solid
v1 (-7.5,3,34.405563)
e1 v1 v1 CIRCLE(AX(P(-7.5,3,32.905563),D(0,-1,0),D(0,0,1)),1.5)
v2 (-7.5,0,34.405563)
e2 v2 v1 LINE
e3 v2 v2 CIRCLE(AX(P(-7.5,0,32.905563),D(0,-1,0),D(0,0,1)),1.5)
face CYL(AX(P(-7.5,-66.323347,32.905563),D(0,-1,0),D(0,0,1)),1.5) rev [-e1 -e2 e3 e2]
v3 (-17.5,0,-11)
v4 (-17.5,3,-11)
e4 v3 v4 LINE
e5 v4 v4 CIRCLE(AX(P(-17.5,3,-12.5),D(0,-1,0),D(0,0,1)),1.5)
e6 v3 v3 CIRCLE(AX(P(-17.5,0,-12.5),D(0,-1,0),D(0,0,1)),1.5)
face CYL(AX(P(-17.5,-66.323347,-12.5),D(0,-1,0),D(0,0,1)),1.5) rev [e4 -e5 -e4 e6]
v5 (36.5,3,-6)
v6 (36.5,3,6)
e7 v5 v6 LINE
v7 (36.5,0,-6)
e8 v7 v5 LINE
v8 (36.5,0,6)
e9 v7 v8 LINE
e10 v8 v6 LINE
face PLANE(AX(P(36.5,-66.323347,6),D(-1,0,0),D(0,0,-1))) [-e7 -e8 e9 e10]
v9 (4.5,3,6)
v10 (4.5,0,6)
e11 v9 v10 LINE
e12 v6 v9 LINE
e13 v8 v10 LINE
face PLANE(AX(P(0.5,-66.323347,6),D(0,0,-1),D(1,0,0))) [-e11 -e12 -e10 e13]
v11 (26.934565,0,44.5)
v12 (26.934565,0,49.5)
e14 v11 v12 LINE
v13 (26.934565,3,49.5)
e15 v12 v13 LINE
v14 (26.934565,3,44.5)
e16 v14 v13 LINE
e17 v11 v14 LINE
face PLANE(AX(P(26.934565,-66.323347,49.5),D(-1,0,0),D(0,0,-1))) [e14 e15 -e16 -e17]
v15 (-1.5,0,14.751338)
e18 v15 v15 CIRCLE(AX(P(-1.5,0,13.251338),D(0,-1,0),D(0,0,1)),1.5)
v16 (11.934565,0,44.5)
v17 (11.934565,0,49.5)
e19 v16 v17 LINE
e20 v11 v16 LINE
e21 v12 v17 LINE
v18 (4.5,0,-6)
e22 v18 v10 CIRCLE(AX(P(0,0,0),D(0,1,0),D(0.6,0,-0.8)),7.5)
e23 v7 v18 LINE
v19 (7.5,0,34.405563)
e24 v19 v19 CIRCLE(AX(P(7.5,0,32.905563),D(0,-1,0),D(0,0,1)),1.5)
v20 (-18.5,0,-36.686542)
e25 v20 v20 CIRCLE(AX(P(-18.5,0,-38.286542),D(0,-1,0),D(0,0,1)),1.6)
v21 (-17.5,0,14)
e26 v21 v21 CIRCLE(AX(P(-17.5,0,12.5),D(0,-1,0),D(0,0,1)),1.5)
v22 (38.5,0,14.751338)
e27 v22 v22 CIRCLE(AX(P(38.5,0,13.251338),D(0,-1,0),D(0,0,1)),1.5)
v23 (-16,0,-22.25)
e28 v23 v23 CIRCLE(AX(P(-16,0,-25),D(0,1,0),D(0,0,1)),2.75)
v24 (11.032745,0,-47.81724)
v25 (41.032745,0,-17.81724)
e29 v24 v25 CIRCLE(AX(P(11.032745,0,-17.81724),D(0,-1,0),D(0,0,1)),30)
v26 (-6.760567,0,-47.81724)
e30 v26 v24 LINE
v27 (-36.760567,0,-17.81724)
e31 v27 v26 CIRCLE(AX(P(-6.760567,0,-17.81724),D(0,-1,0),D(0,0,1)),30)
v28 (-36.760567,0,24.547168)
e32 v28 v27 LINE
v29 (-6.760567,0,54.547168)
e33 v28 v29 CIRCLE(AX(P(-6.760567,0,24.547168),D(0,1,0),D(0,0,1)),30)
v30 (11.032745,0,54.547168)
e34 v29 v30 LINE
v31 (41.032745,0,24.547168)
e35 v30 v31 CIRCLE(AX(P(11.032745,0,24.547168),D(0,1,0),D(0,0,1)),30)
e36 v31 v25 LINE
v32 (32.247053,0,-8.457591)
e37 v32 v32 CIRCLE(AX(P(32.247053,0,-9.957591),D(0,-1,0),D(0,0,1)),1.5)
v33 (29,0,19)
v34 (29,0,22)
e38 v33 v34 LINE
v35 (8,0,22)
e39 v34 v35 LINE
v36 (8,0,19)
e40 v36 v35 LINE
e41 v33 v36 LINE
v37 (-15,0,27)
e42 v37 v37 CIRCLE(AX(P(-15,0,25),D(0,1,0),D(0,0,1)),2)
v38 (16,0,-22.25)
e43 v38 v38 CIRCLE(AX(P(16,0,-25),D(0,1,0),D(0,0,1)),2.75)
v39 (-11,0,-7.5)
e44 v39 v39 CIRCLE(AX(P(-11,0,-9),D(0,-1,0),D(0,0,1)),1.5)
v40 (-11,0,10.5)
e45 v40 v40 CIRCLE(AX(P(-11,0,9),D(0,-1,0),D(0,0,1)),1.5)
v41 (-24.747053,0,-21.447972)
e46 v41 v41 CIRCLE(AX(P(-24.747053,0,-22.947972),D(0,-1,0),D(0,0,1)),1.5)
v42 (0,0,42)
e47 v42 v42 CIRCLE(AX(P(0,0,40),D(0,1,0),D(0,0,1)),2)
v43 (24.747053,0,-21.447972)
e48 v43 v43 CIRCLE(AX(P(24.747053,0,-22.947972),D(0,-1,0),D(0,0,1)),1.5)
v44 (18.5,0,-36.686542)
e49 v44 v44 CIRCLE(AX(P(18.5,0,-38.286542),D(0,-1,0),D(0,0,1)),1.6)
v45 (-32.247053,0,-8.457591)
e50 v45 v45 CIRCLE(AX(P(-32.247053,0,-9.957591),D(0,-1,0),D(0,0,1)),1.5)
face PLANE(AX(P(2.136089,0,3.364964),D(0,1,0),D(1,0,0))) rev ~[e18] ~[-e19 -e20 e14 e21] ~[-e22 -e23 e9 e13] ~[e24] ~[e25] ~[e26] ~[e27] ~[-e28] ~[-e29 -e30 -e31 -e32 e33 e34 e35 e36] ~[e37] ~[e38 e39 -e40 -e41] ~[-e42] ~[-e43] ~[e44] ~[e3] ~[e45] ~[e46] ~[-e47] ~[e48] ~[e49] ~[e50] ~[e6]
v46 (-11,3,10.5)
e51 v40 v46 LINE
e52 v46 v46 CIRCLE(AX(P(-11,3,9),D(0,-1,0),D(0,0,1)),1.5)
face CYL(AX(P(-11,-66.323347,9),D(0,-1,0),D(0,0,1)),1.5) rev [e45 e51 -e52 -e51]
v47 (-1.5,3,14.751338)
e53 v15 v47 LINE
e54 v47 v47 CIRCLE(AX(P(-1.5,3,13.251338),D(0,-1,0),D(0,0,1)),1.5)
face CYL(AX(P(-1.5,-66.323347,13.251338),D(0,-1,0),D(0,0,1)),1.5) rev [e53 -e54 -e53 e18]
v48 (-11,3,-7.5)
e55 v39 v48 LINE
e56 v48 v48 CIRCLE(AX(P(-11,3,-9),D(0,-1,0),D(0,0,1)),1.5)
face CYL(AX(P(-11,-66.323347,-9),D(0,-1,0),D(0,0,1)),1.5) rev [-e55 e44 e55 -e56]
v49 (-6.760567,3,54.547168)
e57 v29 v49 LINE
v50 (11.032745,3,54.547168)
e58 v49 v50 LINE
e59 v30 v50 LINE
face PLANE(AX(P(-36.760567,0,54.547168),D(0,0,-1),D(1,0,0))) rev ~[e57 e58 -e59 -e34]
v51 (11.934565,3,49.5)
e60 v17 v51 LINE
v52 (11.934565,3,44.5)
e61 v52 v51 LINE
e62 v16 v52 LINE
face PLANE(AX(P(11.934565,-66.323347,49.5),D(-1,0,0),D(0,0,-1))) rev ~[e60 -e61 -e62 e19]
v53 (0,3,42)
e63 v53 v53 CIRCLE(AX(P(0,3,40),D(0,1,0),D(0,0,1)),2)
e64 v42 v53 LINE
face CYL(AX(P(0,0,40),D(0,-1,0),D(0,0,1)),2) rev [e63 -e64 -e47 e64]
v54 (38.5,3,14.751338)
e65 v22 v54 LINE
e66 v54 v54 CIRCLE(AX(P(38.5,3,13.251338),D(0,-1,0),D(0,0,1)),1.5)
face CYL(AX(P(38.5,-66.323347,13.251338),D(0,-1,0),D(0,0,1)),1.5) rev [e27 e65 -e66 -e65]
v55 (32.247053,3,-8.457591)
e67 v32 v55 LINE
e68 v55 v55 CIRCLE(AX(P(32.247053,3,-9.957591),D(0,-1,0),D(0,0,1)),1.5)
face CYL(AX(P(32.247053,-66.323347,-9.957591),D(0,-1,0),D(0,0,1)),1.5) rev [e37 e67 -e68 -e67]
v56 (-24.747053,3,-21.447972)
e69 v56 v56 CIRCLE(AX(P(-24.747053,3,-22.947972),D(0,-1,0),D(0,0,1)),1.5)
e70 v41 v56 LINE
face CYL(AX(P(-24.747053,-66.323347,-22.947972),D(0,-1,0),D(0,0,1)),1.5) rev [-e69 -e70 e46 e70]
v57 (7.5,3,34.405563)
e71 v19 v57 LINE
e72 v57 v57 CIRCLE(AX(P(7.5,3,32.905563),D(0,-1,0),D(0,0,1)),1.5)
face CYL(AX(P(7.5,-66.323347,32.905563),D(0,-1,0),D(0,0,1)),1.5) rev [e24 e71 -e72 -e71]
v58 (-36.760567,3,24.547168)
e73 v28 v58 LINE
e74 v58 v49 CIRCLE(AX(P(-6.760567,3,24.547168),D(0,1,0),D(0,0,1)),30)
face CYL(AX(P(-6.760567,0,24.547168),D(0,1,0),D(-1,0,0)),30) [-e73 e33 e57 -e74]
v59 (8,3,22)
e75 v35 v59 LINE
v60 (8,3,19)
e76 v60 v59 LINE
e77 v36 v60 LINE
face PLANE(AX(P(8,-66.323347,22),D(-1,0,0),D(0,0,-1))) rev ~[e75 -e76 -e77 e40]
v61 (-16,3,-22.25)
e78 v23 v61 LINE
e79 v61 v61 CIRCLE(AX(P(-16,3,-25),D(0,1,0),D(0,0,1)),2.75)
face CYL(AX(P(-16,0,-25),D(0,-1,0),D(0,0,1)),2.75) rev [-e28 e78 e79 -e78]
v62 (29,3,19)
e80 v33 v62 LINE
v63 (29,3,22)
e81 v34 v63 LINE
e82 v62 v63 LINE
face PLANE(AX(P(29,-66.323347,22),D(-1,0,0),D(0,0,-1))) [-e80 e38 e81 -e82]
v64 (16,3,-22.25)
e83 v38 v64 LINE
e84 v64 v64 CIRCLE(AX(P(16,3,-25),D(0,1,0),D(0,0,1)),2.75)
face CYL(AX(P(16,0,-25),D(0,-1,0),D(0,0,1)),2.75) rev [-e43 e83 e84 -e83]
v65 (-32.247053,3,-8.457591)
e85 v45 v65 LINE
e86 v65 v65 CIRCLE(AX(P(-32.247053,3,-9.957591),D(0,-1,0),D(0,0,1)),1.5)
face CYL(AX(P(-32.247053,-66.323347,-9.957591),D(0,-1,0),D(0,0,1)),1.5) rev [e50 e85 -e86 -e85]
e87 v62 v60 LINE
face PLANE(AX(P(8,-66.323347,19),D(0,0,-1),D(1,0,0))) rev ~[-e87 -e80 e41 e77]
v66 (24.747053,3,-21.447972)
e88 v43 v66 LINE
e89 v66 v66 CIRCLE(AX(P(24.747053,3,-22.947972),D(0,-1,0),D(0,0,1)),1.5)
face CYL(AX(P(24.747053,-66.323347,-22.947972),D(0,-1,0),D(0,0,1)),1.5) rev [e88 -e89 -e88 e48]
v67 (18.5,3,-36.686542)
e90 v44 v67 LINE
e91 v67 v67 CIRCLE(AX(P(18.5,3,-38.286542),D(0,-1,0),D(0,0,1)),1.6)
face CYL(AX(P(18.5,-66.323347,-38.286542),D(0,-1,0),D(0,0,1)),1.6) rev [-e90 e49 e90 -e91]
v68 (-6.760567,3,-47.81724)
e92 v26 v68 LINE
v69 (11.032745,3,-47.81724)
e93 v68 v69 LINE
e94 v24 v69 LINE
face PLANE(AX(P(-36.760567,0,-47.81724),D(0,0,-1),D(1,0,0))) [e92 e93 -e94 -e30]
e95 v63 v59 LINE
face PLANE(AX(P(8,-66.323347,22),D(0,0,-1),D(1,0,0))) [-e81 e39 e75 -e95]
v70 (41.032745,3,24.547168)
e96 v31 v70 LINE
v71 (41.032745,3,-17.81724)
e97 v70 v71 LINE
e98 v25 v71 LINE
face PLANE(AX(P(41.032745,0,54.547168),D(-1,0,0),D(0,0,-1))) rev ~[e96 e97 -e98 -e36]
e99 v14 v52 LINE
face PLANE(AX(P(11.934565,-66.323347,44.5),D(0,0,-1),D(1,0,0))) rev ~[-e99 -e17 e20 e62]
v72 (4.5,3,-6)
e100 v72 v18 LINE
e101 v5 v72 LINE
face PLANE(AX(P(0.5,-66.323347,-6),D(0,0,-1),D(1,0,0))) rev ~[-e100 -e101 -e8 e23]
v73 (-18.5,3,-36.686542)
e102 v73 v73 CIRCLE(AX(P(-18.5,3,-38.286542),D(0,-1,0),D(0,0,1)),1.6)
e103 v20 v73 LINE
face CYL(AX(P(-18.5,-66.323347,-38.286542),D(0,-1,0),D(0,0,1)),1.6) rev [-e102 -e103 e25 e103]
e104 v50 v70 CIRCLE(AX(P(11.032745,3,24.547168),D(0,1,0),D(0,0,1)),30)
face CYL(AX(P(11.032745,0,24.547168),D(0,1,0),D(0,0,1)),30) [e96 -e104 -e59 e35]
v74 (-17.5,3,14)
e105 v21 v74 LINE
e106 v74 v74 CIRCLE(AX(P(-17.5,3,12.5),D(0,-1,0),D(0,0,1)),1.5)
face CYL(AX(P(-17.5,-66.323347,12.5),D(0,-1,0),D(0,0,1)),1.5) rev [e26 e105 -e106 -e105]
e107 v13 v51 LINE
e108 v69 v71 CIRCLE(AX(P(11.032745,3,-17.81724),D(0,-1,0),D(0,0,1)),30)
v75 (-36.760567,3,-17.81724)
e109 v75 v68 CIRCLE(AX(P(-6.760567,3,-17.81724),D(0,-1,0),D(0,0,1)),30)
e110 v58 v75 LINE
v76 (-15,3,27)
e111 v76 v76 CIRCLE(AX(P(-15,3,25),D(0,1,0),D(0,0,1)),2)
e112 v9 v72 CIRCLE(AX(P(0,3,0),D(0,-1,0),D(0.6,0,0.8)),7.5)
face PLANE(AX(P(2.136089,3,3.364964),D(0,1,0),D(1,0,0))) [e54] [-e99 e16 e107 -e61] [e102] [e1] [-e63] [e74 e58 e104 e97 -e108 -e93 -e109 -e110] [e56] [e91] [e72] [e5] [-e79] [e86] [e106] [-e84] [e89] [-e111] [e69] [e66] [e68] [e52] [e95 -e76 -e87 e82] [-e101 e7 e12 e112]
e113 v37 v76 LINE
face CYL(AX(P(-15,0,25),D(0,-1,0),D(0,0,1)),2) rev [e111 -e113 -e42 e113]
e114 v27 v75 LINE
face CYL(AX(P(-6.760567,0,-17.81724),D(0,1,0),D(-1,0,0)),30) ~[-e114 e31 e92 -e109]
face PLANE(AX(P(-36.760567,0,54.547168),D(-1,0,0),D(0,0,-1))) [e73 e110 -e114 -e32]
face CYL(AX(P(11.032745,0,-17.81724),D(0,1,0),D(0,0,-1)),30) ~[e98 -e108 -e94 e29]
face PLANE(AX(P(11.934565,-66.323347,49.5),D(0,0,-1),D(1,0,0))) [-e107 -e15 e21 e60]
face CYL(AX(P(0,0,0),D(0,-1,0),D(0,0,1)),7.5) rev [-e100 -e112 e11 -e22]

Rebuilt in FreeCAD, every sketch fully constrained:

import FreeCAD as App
import Part
import Sketcher

V = App.Vector
Q = App.Units.Quantity


def edges_at(feature, points):
    """Names of the edges that pass closest to the given points."""
    edges = feature.Shape.Edges
    near = lambda p: min(range(len(edges)), key=lambda i: edges[i].distToShape(Part.Vertex(*p))[0])
    return sorted({f"Edge{near(p) + 1}" for p in points})

doc = App.newDocument("Part")
body = doc.addObject("PartDesign::Body", "Body")

# Sketch on XZ plane
sketch1 = doc.addObject("Sketcher::SketchObject", "Sketch")
body.addObject(sketch1)
sketch1.AttachmentSupport = (doc.XZ_Plane, [""])
sketch1.MapMode = "FlatFace"
sketch1.addGeometry(Part.LineSegment(V(-36.8, -47.8, 0), V(-36.8, 54.5, 0)), False)
sketch1.addGeometry(Part.LineSegment(V(-36.8, 54.5, 0), V(41, 54.5, 0)), False)
sketch1.addGeometry(Part.LineSegment(V(41, 54.5, 0), V(41, -47.8, 0)), False)
sketch1.addGeometry(Part.LineSegment(V(41, -47.8, 0), V(-36.8, -47.8, 0)), False)
sketch1.addGeometry(Part.Circle(V(-15, 25, 0), V(0, 0, 1), 2), False)
sketch1.addGeometry(Part.Circle(V(0, 40, 0), V(0, 0, 1), 2), False)
sketch1.addGeometry(Part.Circle(V(-16, -25, 0), V(0, 0, 1), 2.8), False)
sketch1.addGeometry(Part.Circle(V(0, 0, 0), V(0, 0, 1), 7.5), False)
sketch1.addGeometry(Part.Circle(V(16, -25, 0), V(0, 0, 1), 2.8), False)
sketch1.addConstraint(Sketcher.Constraint("Coincident", 0, 2, 1, 1))
sketch1.addConstraint(Sketcher.Constraint("Coincident", 1, 2, 2, 1))
sketch1.addConstraint(Sketcher.Constraint("Coincident", 2, 2, 3, 1))
sketch1.addConstraint(Sketcher.Constraint("Coincident", 3, 2, 0, 1))
sketch1.addConstraint(Sketcher.Constraint("Vertical", 0))
sketch1.addConstraint(Sketcher.Constraint("Horizontal", 1))
sketch1.addConstraint(Sketcher.Constraint("Vertical", 2))
sketch1.addConstraint(Sketcher.Constraint("Horizontal", 3))
sketch1.addConstraint(Sketcher.Constraint("Coincident", 7, 3, -1, 1))
sketch1.addConstraint(Sketcher.Constraint("Equal", 4, 5))
sketch1.addConstraint(Sketcher.Constraint("Equal", 6, 8))
sketch1.addConstraint(Sketcher.Constraint("Symmetric", 6, 3, 8, 3, -2))
sketch1.addConstraint(Sketcher.Constraint("PointOnObject", 5, 3, -2))
sketch1.addConstraint(Sketcher.Constraint("Diameter", 4, Q("4 mm")))
sketch1.addConstraint(Sketcher.Constraint("Diameter", 7, Q("15 mm")))
sketch1.addConstraint(Sketcher.Constraint("Diameter", 6, Q("5.5 mm")))
sketch1.addConstraint(Sketcher.Constraint("DistanceX", 4, 3, -1, 1, Q("15 mm")))
sketch1.addConstraint(Sketcher.Constraint("DistanceY", -1, 1, 4, 3, Q("25 mm")))
sketch1.addConstraint(Sketcher.Constraint("DistanceY", -1, 1, 5, 3, Q("40 mm")))
sketch1.addConstraint(Sketcher.Constraint("DistanceX", 6, 3, -1, 1, Q("16 mm")))
sketch1.addConstraint(Sketcher.Constraint("DistanceY", 6, 3, -1, 1, Q("25 mm")))
sketch1.addConstraint(Sketcher.Constraint("DistanceX", 1, 1, 1, 2, Q("77.793312 mm")))
sketch1.addConstraint(Sketcher.Constraint("DistanceY", 0, 1, 0, 2, Q("102.364408 mm")))
sketch1.addConstraint(Sketcher.Constraint("DistanceY", 2, 2, -1, 1, Q("47.81724 mm")))
sketch1.addConstraint(Sketcher.Constraint("DistanceX", 0, 2, -1, 1, Q("36.760567 mm")))
pad1 = doc.addObject("PartDesign::Pad", "Pad")
body.addObject(pad1)
pad1.Profile = sketch1
pad1.Length = 3
pad1.Reversed = True

# Sketch on XZ plane
sketch2 = doc.addObject("Sketcher::SketchObject", "Sketch001")
body.addObject(sketch2)
sketch2.AttachmentSupport = (doc.XZ_Plane, [""])
sketch2.MapMode = "FlatFace"
sketch2.AttachmentOffset = App.Placement(V(0, 0, -3), App.Rotation())
sketch2.addGeometry(Part.Circle(V(7.5, 32.9, 0), V(0, 0, 1), 1.5), False)
sketch2.addGeometry(Part.Circle(V(-7.5, 32.9, 0), V(0, 0, 1), 1.5), False)
sketch2.addGeometry(Part.Circle(V(-32.2, -10, 0), V(0, 0, 1), 1.5), False)
sketch2.addGeometry(Part.Circle(V(-24.7, -22.9, 0), V(0, 0, 1), 1.5), False)
sketch2.addGeometry(Part.Circle(V(24.7, -22.9, 0), V(0, 0, 1), 1.5), False)
sketch2.addGeometry(Part.Circle(V(32.2, -10, 0), V(0, 0, 1), 1.5), False)
sketch2.addConstraint(Sketcher.Constraint("Equal", 0, 1))
sketch2.addConstraint(Sketcher.Constraint("Equal", 1, 2))
sketch2.addConstraint(Sketcher.Constraint("Equal", 2, 3))
sketch2.addConstraint(Sketcher.Constraint("Equal", 3, 4))
sketch2.addConstraint(Sketcher.Constraint("Equal", 4, 5))
sketch2.addConstraint(Sketcher.Constraint("Symmetric", 0, 3, 1, 3, -2))
sketch2.addConstraint(Sketcher.Constraint("Symmetric", 3, 3, 4, 3, -2))
sketch2.addConstraint(Sketcher.Constraint("Symmetric", 2, 3, 5, 3, -2))
sketch2.addConstraint(Sketcher.Constraint("Diameter", 0, Q("3 mm")))
sketch2.addConstraint(Sketcher.Constraint("DistanceX", 1, 3, 0, 3, Q("15 mm")))
sketch2.addConstraint(Sketcher.Constraint("DistanceX", 2, 3, 3, 3, Q("7.5 mm")))
sketch2.addConstraint(Sketcher.Constraint("DistanceY", 2, 3, -1, 1, Q("9.957591 mm")))
sketch2.addConstraint(Sketcher.Constraint("DistanceY", 3, 3, 2, 3, Q("12.990381 mm")))
sketch2.addConstraint(Sketcher.Constraint("DistanceY", -1, 1, 0, 3, Q("32.905563 mm")))
sketch2.addConstraint(Sketcher.Constraint("DistanceX", 2, 3, -1, 1, Q("32.247053 mm")))
pocket1 = doc.addObject("PartDesign::Pocket", "Pocket")
body.addObject(pocket1)
pocket1.Profile = sketch2
pocket1.Type = "ThroughAll"
pocket1.Midplane = True

# Sketch on XZ plane
sketch3 = doc.addObject("Sketcher::SketchObject", "Sketch002")
body.addObject(sketch3)
sketch3.AttachmentSupport = (doc.XZ_Plane, [""])
sketch3.MapMode = "FlatFace"
sketch3.AttachmentOffset = App.Placement(V(0, 0, -3), App.Rotation())
sketch3.addGeometry(Part.LineSegment(V(0.5, -6, 0), V(0.5, 6, 0)), False)
sketch3.addGeometry(Part.LineSegment(V(0.5, 6, 0), V(36.5, 6, 0)), False)
sketch3.addGeometry(Part.LineSegment(V(36.5, 6, 0), V(36.5, -6, 0)), False)
sketch3.addGeometry(Part.LineSegment(V(36.5, -6, 0), V(0.5, -6, 0)), False)
sketch3.addGeometry(Part.LineSegment(V(8, 19, 0), V(8, 22, 0)), False)
sketch3.addGeometry(Part.LineSegment(V(8, 22, 0), V(29, 22, 0)), False)
sketch3.addGeometry(Part.LineSegment(V(29, 22, 0), V(29, 19, 0)), False)
sketch3.addGeometry(Part.LineSegment(V(29, 19, 0), V(8, 19, 0)), False)
sketch3.addGeometry(Part.LineSegment(V(11.9, 44.5, 0), V(11.9, 49.5, 0)), False)
sketch3.addGeometry(Part.LineSegment(V(11.9, 49.5, 0), V(26.9, 49.5, 0)), False)
sketch3.addGeometry(Part.LineSegment(V(26.9, 49.5, 0), V(26.9, 44.5, 0)), False)
sketch3.addGeometry(Part.LineSegment(V(26.9, 44.5, 0), V(11.9, 44.5, 0)), False)
sketch3.addGeometry(Part.Circle(V(38.5, 13.3, 0), V(0, 0, 1), 1.5), False)
sketch3.addGeometry(Part.Circle(V(-1.5, 13.3, 0), V(0, 0, 1), 1.5), False)
sketch3.addConstraint(Sketcher.Constraint("Coincident", 0, 2, 1, 1))
sketch3.addConstraint(Sketcher.Constraint("Coincident", 1, 2, 2, 1))
sketch3.addConstraint(Sketcher.Constraint("Coincident", 2, 2, 3, 1))
sketch3.addConstraint(Sketcher.Constraint("Coincident", 3, 2, 0, 1))
sketch3.addConstraint(Sketcher.Constraint("Coincident", 4, 2, 5, 1))
sketch3.addConstraint(Sketcher.Constraint("Coincident", 5, 2, 6, 1))
sketch3.addConstraint(Sketcher.Constraint("Coincident", 6, 2, 7, 1))
sketch3.addConstraint(Sketcher.Constraint("Coincident", 7, 2, 4, 1))
sketch3.addConstraint(Sketcher.Constraint("Coincident", 8, 2, 9, 1))
sketch3.addConstraint(Sketcher.Constraint("Coincident", 9, 2, 10, 1))
sketch3.addConstraint(Sketcher.Constraint("Coincident", 10, 2, 11, 1))
sketch3.addConstraint(Sketcher.Constraint("Coincident", 11, 2, 8, 1))
sketch3.addConstraint(Sketcher.Constraint("Vertical", 0))
sketch3.addConstraint(Sketcher.Constraint("Horizontal", 1))
sketch3.addConstraint(Sketcher.Constraint("Vertical", 2))
sketch3.addConstraint(Sketcher.Constraint("Horizontal", 3))
sketch3.addConstraint(Sketcher.Constraint("Vertical", 4))
sketch3.addConstraint(Sketcher.Constraint("Horizontal", 5))
sketch3.addConstraint(Sketcher.Constraint("Vertical", 6))
sketch3.addConstraint(Sketcher.Constraint("Horizontal", 7))
sketch3.addConstraint(Sketcher.Constraint("Vertical", 8))
sketch3.addConstraint(Sketcher.Constraint("Horizontal", 9))
sketch3.addConstraint(Sketcher.Constraint("Vertical", 10))
sketch3.addConstraint(Sketcher.Constraint("Horizontal", 11))
sketch3.addConstraint(Sketcher.Constraint("Equal", 12, 13))
sketch3.addConstraint(Sketcher.Constraint("Horizontal", 12, 3, 13, 3))
sketch3.addConstraint(Sketcher.Constraint("Diameter", 12, Q("3 mm")))
sketch3.addConstraint(Sketcher.Constraint("DistanceX", 1, 1, 1, 2, Q("36 mm")))
sketch3.addConstraint(Sketcher.Constraint("DistanceX", 5, 1, 5, 2, Q("21 mm")))
sketch3.addConstraint(Sketcher.Constraint("DistanceX", 9, 1, 9, 2, Q("15 mm")))
sketch3.addConstraint(Sketcher.Constraint("DistanceY", 0, 1, 0, 2, Q("12 mm")))
sketch3.addConstraint(Sketcher.Constraint("DistanceY", 4, 1, 4, 2, Q("3 mm")))
sketch3.addConstraint(Sketcher.Constraint("DistanceY", 8, 1, 8, 2, Q("5 mm")))
sketch3.addConstraint(Sketcher.Constraint("DistanceY", -1, 1, 0, 2, Q("6 mm")))
sketch3.addConstraint(Sketcher.Constraint("DistanceX", -1, 1, 4, 2, Q("8 mm")))
sketch3.addConstraint(Sketcher.Constraint("DistanceY", -1, 1, 4, 2, Q("22 mm")))
sketch3.addConstraint(Sketcher.Constraint("DistanceX", 13, 3, 12, 3, Q("40 mm")))
sketch3.addConstraint(Sketcher.Constraint("DistanceX", 13, 3, 0, 2, Q("2 mm")))
sketch3.addConstraint(Sketcher.Constraint("DistanceX", -1, 1, 12, 3, Q("38.5 mm")))
sketch3.addConstraint(Sketcher.Constraint("DistanceY", -1, 1, 8, 2, Q("49.5 mm")))
sketch3.addConstraint(Sketcher.Constraint("DistanceY", -1, 1, 12, 3, Q("13.251338 mm")))
sketch3.addConstraint(Sketcher.Constraint("DistanceX", -1, 1, 8, 2, Q("11.934565 mm")))
pocket2 = doc.addObject("PartDesign::Pocket", "Pocket001")
body.addObject(pocket2)
pocket2.Profile = sketch3
pocket2.Type = "ThroughAll"
pocket2.Midplane = True

# Sketch on XZ plane
sketch4 = doc.addObject("Sketcher::SketchObject", "Sketch003")
body.addObject(sketch4)
sketch4.AttachmentSupport = (doc.XZ_Plane, [""])
sketch4.MapMode = "FlatFace"
sketch4.AttachmentOffset = App.Placement(V(0, 0, -3), App.Rotation())
sketch4.addGeometry(Part.Circle(V(-11, -9, 0), V(0, 0, 1), 1.5), False)
sketch4.addGeometry(Part.Circle(V(-11, 9, 0), V(0, 0, 1), 1.5), False)
sketch4.addConstraint(Sketcher.Constraint("Equal", 0, 1))
sketch4.addConstraint(Sketcher.Constraint("Symmetric", 0, 3, 1, 3, -1))
sketch4.addConstraint(Sketcher.Constraint("Diameter", 0, Q("3 mm")))
sketch4.addConstraint(Sketcher.Constraint("DistanceX", 0, 3, -1, 1, Q("11 mm")))
sketch4.addConstraint(Sketcher.Constraint("DistanceY", 0, 3, -1, 1, Q("9 mm")))
pocket3 = doc.addObject("PartDesign::Pocket", "Pocket002")
body.addObject(pocket3)
pocket3.Profile = sketch4
pocket3.Type = "ThroughAll"
pocket3.Midplane = True

# Sketch on XZ plane
sketch5 = doc.addObject("Sketcher::SketchObject", "Sketch004")
body.addObject(sketch5)
sketch5.AttachmentSupport = (doc.XZ_Plane, [""])
sketch5.MapMode = "FlatFace"
sketch5.AttachmentOffset = App.Placement(V(0, 0, -3), App.Rotation())
sketch5.addGeometry(Part.Circle(V(18.5, -38.3, 0), V(0, 0, 1), 1.6), False)
sketch5.addGeometry(Part.Circle(V(-18.5, -38.3, 0), V(0, 0, 1), 1.6), False)
sketch5.addConstraint(Sketcher.Constraint("Equal", 0, 1))
sketch5.addConstraint(Sketcher.Constraint("Symmetric", 0, 3, 1, 3, -2))
sketch5.addConstraint(Sketcher.Constraint("Diameter", 0, Q("3.2 mm")))
sketch5.addConstraint(Sketcher.Constraint("DistanceX", 1, 3, 0, 3, Q("37 mm")))
sketch5.addConstraint(Sketcher.Constraint("DistanceY", 0, 3, -1, 1, Q("38.286542 mm")))
pocket4 = doc.addObject("PartDesign::Pocket", "Pocket003")
body.addObject(pocket4)
pocket4.Profile = sketch5
pocket4.Type = "ThroughAll"
pocket4.Midplane = True
doc.recompute()

fillet = doc.addObject("PartDesign::Fillet", "Fillet")
body.addObject(fillet)
fillet.Base = (pocket4, edges_at(pocket4, [
    (-36.761, 1.5, -47.817),
    (41.033, 1.5, -47.817),
    (41.033, 1.5, 54.547),
    (-36.761, 1.5, 54.547),
]))
fillet.Radius = 30

# Sketch on XZ plane
sketch6 = doc.addObject("Sketcher::SketchObject", "Sketch005")
body.addObject(sketch6)
sketch6.AttachmentSupport = (doc.XZ_Plane, [""])
sketch6.MapMode = "FlatFace"
sketch6.AttachmentOffset = App.Placement(V(0, 0, -3), App.Rotation())
sketch6.addGeometry(Part.Circle(V(-17.5, -12.5, 0), V(0, 0, 1), 1.5), False)
sketch6.addGeometry(Part.Circle(V(-17.5, 12.5, 0), V(0, 0, 1), 1.5), False)
sketch6.addConstraint(Sketcher.Constraint("Equal", 0, 1))
sketch6.addConstraint(Sketcher.Constraint("Symmetric", 0, 3, 1, 3, -1))
sketch6.addConstraint(Sketcher.Constraint("Diameter", 0, Q("3 mm")))
sketch6.addConstraint(Sketcher.Constraint("DistanceY", 0, 3, 1, 3, Q("25 mm")))
sketch6.addConstraint(Sketcher.Constraint("DistanceX", 0, 3, -1, 1, Q("17.5 mm")))
pocket5 = doc.addObject("PartDesign::Pocket", "Pocket004")
body.addObject(pocket5)
pocket5.Profile = sketch6
pocket5.Type = "ThroughAll"
pocket5.Midplane = True

doc.recompute()
